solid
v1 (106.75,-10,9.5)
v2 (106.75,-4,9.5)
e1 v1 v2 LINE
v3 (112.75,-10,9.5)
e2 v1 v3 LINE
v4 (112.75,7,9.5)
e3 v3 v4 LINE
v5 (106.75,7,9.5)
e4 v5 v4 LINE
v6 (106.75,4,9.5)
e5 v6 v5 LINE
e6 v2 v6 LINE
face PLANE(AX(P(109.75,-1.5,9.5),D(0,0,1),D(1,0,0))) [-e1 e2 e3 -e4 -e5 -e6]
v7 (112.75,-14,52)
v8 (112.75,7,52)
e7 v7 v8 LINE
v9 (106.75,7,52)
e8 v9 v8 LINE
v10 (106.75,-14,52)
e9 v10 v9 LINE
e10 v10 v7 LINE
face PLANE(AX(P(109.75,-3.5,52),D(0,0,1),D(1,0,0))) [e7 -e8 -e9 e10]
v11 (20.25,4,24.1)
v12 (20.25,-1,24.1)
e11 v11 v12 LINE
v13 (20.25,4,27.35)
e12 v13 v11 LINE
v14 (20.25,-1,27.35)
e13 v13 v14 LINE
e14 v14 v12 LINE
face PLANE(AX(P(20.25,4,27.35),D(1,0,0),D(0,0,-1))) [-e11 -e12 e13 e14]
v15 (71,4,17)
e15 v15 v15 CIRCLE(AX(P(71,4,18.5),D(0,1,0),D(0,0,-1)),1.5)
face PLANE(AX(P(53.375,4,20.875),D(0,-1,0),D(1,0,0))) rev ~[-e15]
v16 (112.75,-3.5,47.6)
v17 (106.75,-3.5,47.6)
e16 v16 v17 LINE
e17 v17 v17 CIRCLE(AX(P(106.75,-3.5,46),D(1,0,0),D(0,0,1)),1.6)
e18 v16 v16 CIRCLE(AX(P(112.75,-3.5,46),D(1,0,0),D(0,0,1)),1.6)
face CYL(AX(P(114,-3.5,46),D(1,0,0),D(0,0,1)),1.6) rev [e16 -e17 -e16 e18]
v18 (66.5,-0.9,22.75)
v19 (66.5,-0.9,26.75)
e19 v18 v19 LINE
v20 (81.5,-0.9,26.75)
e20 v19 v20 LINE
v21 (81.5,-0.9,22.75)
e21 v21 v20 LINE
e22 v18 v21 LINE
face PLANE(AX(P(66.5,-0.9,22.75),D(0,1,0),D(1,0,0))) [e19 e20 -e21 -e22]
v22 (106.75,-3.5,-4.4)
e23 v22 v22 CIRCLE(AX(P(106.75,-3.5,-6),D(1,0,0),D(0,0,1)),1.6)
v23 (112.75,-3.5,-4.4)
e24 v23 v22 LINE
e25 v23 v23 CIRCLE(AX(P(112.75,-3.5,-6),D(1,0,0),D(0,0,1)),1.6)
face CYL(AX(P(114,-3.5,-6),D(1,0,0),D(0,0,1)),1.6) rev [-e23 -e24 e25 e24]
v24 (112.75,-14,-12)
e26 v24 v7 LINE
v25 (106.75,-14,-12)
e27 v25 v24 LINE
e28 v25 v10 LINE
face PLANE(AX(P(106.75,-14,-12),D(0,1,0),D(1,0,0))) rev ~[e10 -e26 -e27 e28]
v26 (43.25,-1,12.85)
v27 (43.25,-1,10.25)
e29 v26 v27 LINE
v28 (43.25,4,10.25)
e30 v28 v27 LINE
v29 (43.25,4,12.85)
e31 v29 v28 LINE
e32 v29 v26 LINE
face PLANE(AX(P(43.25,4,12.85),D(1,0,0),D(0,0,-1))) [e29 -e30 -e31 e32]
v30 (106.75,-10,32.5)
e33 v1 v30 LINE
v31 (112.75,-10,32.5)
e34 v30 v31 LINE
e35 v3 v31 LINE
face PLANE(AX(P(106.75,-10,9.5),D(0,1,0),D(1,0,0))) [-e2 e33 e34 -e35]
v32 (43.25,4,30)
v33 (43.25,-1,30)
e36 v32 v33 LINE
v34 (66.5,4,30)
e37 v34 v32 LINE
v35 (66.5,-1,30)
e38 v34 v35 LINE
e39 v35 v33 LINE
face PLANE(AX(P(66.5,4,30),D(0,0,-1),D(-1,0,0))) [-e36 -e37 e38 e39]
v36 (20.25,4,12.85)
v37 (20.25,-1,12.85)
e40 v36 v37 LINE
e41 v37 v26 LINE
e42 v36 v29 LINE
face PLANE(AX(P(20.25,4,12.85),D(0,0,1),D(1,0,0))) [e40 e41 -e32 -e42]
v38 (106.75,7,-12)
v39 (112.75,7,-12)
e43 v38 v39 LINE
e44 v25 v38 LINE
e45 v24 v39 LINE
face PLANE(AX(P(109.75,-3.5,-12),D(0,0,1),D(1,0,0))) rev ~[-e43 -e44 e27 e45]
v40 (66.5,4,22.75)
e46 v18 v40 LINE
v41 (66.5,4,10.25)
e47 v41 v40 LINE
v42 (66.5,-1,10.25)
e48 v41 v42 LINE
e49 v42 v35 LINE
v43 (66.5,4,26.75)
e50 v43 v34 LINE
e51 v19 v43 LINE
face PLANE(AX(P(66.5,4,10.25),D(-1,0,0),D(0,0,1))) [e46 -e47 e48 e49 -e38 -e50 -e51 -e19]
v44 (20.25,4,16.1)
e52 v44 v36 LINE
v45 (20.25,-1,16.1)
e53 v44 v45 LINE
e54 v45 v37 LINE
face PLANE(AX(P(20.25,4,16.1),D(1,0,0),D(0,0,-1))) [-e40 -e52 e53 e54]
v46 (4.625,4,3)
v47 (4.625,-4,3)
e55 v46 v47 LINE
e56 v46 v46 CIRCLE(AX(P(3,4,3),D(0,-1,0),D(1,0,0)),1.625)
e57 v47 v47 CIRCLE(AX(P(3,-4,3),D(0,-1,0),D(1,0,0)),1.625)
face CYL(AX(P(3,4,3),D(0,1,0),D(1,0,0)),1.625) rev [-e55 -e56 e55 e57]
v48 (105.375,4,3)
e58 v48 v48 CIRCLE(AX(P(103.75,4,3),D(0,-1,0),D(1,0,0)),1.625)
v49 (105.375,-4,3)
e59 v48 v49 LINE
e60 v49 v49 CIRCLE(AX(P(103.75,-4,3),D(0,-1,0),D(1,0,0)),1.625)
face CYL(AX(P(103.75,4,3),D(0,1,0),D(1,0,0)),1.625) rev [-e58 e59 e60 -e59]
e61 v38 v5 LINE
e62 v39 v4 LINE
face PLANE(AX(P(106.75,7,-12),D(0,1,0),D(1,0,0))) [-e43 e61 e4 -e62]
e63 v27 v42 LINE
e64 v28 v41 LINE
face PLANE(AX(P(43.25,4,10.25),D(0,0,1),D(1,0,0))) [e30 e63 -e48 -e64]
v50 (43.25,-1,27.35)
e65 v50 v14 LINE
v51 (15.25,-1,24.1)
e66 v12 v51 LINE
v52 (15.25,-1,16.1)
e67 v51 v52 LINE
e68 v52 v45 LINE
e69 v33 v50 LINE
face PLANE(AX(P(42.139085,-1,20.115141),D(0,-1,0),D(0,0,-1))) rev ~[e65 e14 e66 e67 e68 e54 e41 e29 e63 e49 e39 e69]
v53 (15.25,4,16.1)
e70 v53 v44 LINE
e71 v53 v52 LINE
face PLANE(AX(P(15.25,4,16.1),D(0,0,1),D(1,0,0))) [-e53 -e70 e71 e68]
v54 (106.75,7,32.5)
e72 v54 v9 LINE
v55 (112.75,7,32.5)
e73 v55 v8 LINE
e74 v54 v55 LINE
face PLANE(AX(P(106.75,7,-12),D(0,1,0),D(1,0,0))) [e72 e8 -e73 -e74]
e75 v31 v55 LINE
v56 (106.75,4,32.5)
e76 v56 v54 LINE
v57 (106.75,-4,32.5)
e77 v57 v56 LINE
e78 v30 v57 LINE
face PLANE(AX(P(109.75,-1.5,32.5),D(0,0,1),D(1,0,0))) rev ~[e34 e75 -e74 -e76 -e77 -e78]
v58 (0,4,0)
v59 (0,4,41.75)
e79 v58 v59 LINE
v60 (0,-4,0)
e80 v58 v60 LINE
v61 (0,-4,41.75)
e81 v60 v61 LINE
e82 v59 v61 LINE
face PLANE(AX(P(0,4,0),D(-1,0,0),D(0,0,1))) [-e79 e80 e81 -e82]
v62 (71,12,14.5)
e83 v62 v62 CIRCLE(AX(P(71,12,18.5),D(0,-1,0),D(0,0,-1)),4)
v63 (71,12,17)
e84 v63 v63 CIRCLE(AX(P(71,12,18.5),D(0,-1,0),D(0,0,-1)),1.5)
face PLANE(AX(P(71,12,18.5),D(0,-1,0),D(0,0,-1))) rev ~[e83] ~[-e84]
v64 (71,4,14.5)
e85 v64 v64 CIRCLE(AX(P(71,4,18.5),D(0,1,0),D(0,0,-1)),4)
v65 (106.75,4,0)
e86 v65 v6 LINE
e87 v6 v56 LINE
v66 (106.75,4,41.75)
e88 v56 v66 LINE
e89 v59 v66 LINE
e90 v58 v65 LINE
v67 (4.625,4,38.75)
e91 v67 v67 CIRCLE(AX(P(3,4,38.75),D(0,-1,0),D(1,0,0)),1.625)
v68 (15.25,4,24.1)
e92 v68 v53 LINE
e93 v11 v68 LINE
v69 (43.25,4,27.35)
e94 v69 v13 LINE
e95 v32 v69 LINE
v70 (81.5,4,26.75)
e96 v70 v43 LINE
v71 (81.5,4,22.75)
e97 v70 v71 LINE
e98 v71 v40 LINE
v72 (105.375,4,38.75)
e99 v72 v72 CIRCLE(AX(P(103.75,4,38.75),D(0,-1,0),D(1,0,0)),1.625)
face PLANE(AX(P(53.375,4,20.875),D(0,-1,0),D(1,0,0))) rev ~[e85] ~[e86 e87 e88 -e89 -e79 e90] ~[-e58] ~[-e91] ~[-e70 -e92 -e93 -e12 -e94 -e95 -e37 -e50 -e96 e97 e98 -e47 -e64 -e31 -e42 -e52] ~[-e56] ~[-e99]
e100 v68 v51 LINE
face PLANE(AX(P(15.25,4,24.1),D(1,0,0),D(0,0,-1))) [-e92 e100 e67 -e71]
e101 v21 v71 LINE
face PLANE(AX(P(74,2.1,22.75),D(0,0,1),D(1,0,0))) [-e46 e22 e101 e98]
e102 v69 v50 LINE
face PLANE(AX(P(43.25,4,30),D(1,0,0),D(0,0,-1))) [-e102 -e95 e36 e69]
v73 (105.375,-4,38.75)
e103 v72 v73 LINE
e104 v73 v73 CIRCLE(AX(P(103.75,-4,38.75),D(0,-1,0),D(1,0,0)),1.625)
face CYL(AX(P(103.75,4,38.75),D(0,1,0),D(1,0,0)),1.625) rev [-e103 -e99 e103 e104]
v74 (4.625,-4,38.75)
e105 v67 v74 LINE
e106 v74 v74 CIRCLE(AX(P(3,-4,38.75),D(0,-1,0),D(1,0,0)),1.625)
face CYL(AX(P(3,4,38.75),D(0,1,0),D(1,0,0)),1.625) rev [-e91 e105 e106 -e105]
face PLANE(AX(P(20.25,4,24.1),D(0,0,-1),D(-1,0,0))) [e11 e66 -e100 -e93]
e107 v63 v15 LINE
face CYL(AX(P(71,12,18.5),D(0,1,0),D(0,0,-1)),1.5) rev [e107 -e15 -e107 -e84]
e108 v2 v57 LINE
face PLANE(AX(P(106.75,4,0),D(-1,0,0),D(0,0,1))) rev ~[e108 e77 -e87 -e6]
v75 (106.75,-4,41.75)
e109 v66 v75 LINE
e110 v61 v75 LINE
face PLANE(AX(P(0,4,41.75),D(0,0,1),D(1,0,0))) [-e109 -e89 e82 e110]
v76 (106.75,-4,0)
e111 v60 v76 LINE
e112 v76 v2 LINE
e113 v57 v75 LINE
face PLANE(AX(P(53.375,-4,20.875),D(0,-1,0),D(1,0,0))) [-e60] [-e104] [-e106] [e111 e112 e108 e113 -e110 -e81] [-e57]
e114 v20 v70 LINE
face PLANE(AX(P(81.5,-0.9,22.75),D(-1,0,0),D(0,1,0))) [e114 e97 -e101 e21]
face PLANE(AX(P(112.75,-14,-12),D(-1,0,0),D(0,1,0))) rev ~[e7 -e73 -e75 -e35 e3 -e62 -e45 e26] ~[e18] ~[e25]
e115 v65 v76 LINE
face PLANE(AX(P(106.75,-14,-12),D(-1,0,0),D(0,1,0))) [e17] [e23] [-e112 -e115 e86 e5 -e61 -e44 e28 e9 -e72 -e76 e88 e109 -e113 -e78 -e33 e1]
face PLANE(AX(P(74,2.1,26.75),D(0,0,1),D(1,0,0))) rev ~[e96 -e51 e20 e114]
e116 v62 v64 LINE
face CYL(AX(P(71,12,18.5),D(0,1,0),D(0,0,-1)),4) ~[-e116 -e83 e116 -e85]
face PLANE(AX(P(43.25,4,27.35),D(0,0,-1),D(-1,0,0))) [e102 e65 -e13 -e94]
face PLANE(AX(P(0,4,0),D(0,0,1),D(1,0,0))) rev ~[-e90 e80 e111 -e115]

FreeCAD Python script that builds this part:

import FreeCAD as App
import Part
import Sketcher
from FreeCAD import Vector


def add_polygon(sketch, points):
    """Adds a closed chain of lines whose ends are joined by coincident constraints."""
    first, n = sketch.GeometryCount, len(points)
    for a, b in zip(points, points[1:] + points[:1]):
        sketch.addGeometry(Part.LineSegment(App.Vector(*a, 0), App.Vector(*b, 0)), False)
    for i in range(n):
        sketch.addConstraint(Sketcher.Constraint("Coincident", first + i, 2, first + (i + 1) % n, 1))

doc = App.newDocument("Part")
body = doc.addObject("PartDesign::Body", "Body")

sketch1 = doc.addObject("Sketcher::SketchObject", "Sketch")
body.addObject(sketch1)
sketch1.AttachmentSupport = (doc.XY_Plane, [""])
sketch1.MapMode = "FlatFace"
sketch1.AttachmentOffset = App.Placement(Vector(0, 0, 22.75), App.Rotation())
add_polygon(sketch1, [(66, 5), (66, -1), (82, -1), (82, 5)])
sketch1.addConstraint(Sketcher.Constraint("Vertical", 0))
sketch1.addConstraint(Sketcher.Constraint("Horizontal", 1))
sketch1.addConstraint(Sketcher.Constraint("Vertical", 2))
sketch1.addConstraint(Sketcher.Constraint("Horizontal", 3))
sketch1.addConstraint(Sketcher.Constraint("DistanceX", 1, 1, 1, 2, 15.0))
sketch1.addConstraint(Sketcher.Constraint("DistanceY", 0, 2, 0, 1, 6.0))
sketch1.addConstraint(Sketcher.Constraint("DistanceX", -1, 1, 0, 2, 66.5))
sketch1.addConstraint(Sketcher.Constraint("DistanceY", 0, 2, -1, 1, 0.9))
pad1 = doc.addObject("PartDesign::Pad", "Pad")
body.addObject(pad1)
pad1.Profile = sketch1
pad1.Length = 4
body2 = doc.addObject("PartDesign::Body", "Body001")

sketch2 = doc.addObject("Sketcher::SketchObject", "Sketch001")
body2.addObject(sketch2)
sketch2.AttachmentSupport = (doc.getObject("YZ_Plane001"), [""])
sketch2.MapMode = "FlatFace"
add_polygon(sketch2, [(10.2, 66.5), (10.2, 43.2), (12.9, 43.2), (12.9, 20.2), (16.1, 20.2), (16.1, 15.2), (24.1, 15.2), (24.1, 20.2), (27.4, 20.2), (27.4, 43.2), (30, 43.2), (30, 66.5)])
sketch2.addConstraint(Sketcher.Constraint("Vertical", 0))
sketch2.addConstraint(Sketcher.Constraint("Horizontal", 1))
sketch2.addConstraint(Sketcher.Constraint("Vertical", 2))
sketch2.addConstraint(Sketcher.Constraint("Horizontal", 3))
sketch2.addConstraint(Sketcher.Constraint("Vertical", 4))
sketch2.addConstraint(Sketcher.Constraint("Horizontal", 5))
sketch2.addConstraint(Sketcher.Constraint("Vertical", 6))
sketch2.addConstraint(Sketcher.Constraint("Horizontal", 7))
sketch2.addConstraint(Sketcher.Constraint("Vertical", 8))
sketch2.addConstraint(Sketcher.Constraint("Horizontal", 9))
sketch2.addConstraint(Sketcher.Constraint("Vertical", 10))
sketch2.addConstraint(Sketcher.Constraint("Horizontal", 11))
sketch2.addConstraint(Sketcher.Constraint("Horizontal", 3, 2, 6, 2))
sketch2.addConstraint(Sketcher.Constraint("Horizontal", 1, 2, 8, 2))
sketch2.addConstraint(Sketcher.Constraint("Equal", 3, 7))
sketch2.addConstraint(Sketcher.Constraint("DistanceX", 5, 1, 5, 2, 8.0))
sketch2.addConstraint(Sketcher.Constraint("DistanceY", 2, 2, 2, 1, 23.0))
sketch2.addConstraint(Sketcher.Constraint("DistanceY", 4, 2, 4, 1, 5.0))
sketch2.addConstraint(Sketcher.Constraint("DistanceX", 9, 1, 9, 2, 2.6))
sketch2.addConstraint(Sketcher.Constraint("DistanceX", -1, 1, 9, 2, 30.0))
sketch2.addConstraint(Sketcher.Constraint("DistanceX", 1, 1, 1, 2, 2.65))
sketch2.addConstraint(Sketcher.Constraint("DistanceX", 3, 1, 3, 2, 3.25))
sketch2.addConstraint(Sketcher.Constraint("DistanceY", 0, 2, 0, 1, 23.25))
sketch2.addConstraint(Sketcher.Constraint("DistanceY", -1, 1, 10, 2, 66.5))
pad2 = doc.addObject("PartDesign::Pad", "Pad001")
body2.addObject(pad2)
pad2.Profile = sketch2
pad2.Length = 5
body3 = doc.addObject("PartDesign::Body", "Body002")
doc.recompute()

body2.Placement = App.Placement(Vector(0, 0, 0), App.Rotation(Vector(1, 0, 0), 270))
boolean = doc.addObject("PartDesign::Boolean", "Boolean")
body3.addObject(boolean)
boolean.Type = "Fuse"
boolean.addObjects([body2])
body4 = doc.addObject("PartDesign::Body", "Body003")
doc.recompute()

body3.Placement = App.Placement(Vector(0, 4, 40.25), App.Rotation(Vector(0, 0, 1), 270))
boolean2 = doc.addObject("PartDesign::Boolean", "Boolean001")
body4.addObject(boolean2)
boolean2.Type = "Fuse"
boolean2.addObjects([body3])
body5 = doc.addObject("PartDesign::Body", "Body004")

sketch3 = doc.addObject("Sketcher::SketchObject", "Sketch002")
body5.addObject(sketch3)
sketch3.AttachmentSupport = (doc.getObject("YZ_Plane004"), [""])
sketch3.MapMode = "FlatFace"
sketch3.AttachmentOffset = App.Placement(Vector(0, 0, 114), App.Rotation())
sketch3.addGeometry(Part.Circle(Vector(6.5, 46, 0), Vector(0, 0, 1), 1.6), False)
sketch3.addConstraint(Sketcher.Constraint("Diameter", 0, 3.2))
sketch3.addConstraint(Sketcher.Constraint("DistanceY", -1, 1, 0, 3, 46.0))
sketch3.addConstraint(Sketcher.Constraint("DistanceX", -1, 1, 0, 3, 6.5))
pad3 = doc.addObject("PartDesign::Pad", "Pad002")
body5.addObject(pad3)
pad3.Profile = sketch3
pad3.Length = 10
pad3.Reversed = True
body6 = doc.addObject("PartDesign::Body", "Body005")
body6.AllowCompound = True

sketch4 = doc.addObject("Sketcher::SketchObject", "Sketch003")
body6.addObject(sketch4)
sketch4.AttachmentSupport = (doc.getObject("YZ_Plane005"), [""])
sketch4.MapMode = "FlatFace"
sketch4.AttachmentOffset = App.Placement(Vector(0, 0, 114), App.Rotation())
sketch4.addGeometry(Part.Circle(Vector(6.5, -6, 0), Vector(0, 0, 1), 1.6), False)
sketch4.addConstraint(Sketcher.Constraint("Diameter", 0, 3.2))
sketch4.addConstraint(Sketcher.Constraint("DistanceY", 0, 3, -1, 1, 6.0))
sketch4.addConstraint(Sketcher.Constraint("DistanceX", -1, 1, 0, 3, 6.5))
pad4 = doc.addObject("PartDesign::Pad", "Pad003")
body6.addObject(pad4)
pad4.Profile = sketch4
pad4.Length = 10
pad4.Reversed = True
doc.recompute()

boolean3 = doc.addObject("PartDesign::Boolean", "Boolean002")
body6.addObject(boolean3)
boolean3.Type = "Fuse"
boolean3.addObjects([body5])
body7 = doc.addObject("PartDesign::Body", "Body006")
body7.AllowCompound = True
doc.recompute()

body6.Placement = App.Placement(Vector(0, -10, 0), App.Rotation(Vector(0, 0, 1), 0))
boolean4 = doc.addObject("PartDesign::Boolean", "Boolean003")
body7.addObject(boolean4)
boolean4.Type = "Fuse"
boolean4.addObjects([body6])
body8 = doc.addObject("PartDesign::Body", "Body007")

sketch5 = doc.addObject("Sketcher::SketchObject", "Sketch004")
body8.addObject(sketch5)
sketch5.AttachmentSupport = (doc.getObject("YZ_Plane007"), [""])
sketch5.MapMode = "FlatFace"
add_polygon(sketch5, [(0, 41.8), (0, 0), (106.8, 0), (106.8, 41.8)])
sketch5.addGeometry(Part.Circle(Vector(3, 3, 0), Vector(0, 0, 1), 1.6), False)
sketch5.addGeometry(Part.Circle(Vector(103.8, 3, 0), Vector(0, 0, 1), 1.6), False)
sketch5.addGeometry(Part.Circle(Vector(3, 38.8, 0), Vector(0, 0, 1), 1.6), False)
sketch5.addGeometry(Part.Circle(Vector(103.8, 38.8, 0), Vector(0, 0, 1), 1.6), False)
sketch5.addConstraint(Sketcher.Constraint("Vertical", 0))
sketch5.addConstraint(Sketcher.Constraint("Horizontal", 1))
sketch5.addConstraint(Sketcher.Constraint("Vertical", 2))
sketch5.addConstraint(Sketcher.Constraint("Horizontal", 3))
sketch5.addConstraint(Sketcher.Constraint("Coincident", 0, 2, -1, 1))
sketch5.addConstraint(Sketcher.Constraint("Equal", 4, 5))
sketch5.addConstraint(Sketcher.Constraint("Equal", 5, 6))
sketch5.addConstraint(Sketcher.Constraint("Equal", 6, 7))
sketch5.addConstraint(Sketcher.Constraint("Horizontal", 4, 3, 5, 3))
sketch5.addConstraint(Sketcher.Constraint("Horizontal", 6, 3, 7, 3))
sketch5.addConstraint(Sketcher.Constraint("Vertical", 4, 3, 6, 3))
sketch5.addConstraint(Sketcher.Constraint("Vertical", 5, 3, 7, 3))
sketch5.addConstraint(Sketcher.Constraint("Diameter", 4, 3.25))
sketch5.addConstraint(Sketcher.Constraint("DistanceX", -1, 1, 4, 3, 3.0))
sketch5.addConstraint(Sketcher.Constraint("DistanceY", -1, 1, 4, 3, 3.0))
sketch5.addConstraint(Sketcher.Constraint("DistanceX", 5, 3, 1, 2, 3.0))
sketch5.addConstraint(Sketcher.Constraint("DistanceY", 7, 3, 2, 2, 3.0))
sketch5.addConstraint(Sketcher.Constraint("DistanceX", 1, 1, 1, 2, 106.75))
sketch5.addConstraint(Sketcher.Constraint("DistanceY", 0, 2, 0, 1, 41.75))
pad5 = doc.addObject("PartDesign::Pad", "Pad004")
body8.addObject(pad5)
pad5.Profile = sketch5
pad5.Length = 8
body9 = doc.addObject("PartDesign::Body", "Body008")
doc.recompute()

body8.Placement = App.Placement(Vector(0, 4, 0), App.Rotation(Vector(0, 0, 1), 270))
boolean5 = doc.addObject("PartDesign::Boolean", "Boolean004")
body9.addObject(boolean5)
boolean5.Type = "Fuse"
boolean5.addObjects([body8])
body10 = doc.addObject("PartDesign::Body", "Body009")

sketch6 = doc.addObject("Sketcher::SketchObject", "Sketch005")
body10.addObject(sketch6)
sketch6.AttachmentSupport = (doc.getObject("XY_Plane009"), [""])
sketch6.MapMode = "FlatFace"
sketch6.AttachmentOffset = App.Placement(Vector(0, 0, 9.5), App.Rotation())
add_polygon(sketch6, [(107, 17), (107, 0), (113, 0), (113, 17)])
sketch6.addConstraint(Sketcher.Constraint("Vertical", 0))
sketch6.addConstraint(Sketcher.Constraint("Horizontal", 1))
sketch6.addConstraint(Sketcher.Constraint("Vertical", 2))
sketch6.addConstraint(Sketcher.Constraint("Horizontal", 3))
sketch6.addConstraint(Sketcher.Constraint("PointOnObject", 0, 2, -1))
sketch6.addConstraint(Sketcher.Constraint("DistanceX", 1, 1, 1, 2, 6.0))
sketch6.addConstraint(Sketcher.Constraint("DistanceY", 0, 2, 0, 1, 17.0))
sketch6.addConstraint(Sketcher.Constraint("DistanceX", -1, 1, 0, 2, 106.75))
pad6 = doc.addObject("PartDesign::Pad", "Pad005")
body10.addObject(pad6)
pad6.Profile = sketch6
pad6.Length = 23
body11 = doc.addObject("PartDesign::Body", "Body010")

sketch7 = doc.addObject("Sketcher::SketchObject", "Sketch006")
body11.addObject(sketch7)
sketch7.AttachmentSupport = (doc.getObject("XY_Plane010"), [""])
sketch7.MapMode = "FlatFace"
sketch7.AttachmentOffset = App.Placement(Vector(0, 0, -12), App.Rotation())
add_polygon(sketch7, [(107, 17), (107, -4), (113, -4), (113, 17)])
sketch7.addConstraint(Sketcher.Constraint("Vertical", 0))
sketch7.addConstraint(Sketcher.Constraint("Horizontal", 1))
sketch7.addConstraint(Sketcher.Constraint("Vertical", 2))
sketch7.addConstraint(Sketcher.Constraint("Horizontal", 3))
sketch7.addConstraint(Sketcher.Constraint("DistanceX", 1, 1, 1, 2, 6.0))
sketch7.addConstraint(Sketcher.Constraint("DistanceY", 0, 2, 0, 1, 21.0))
sketch7.addConstraint(Sketcher.Constraint("DistanceY", 0, 2, -1, 1, 4.0))
sketch7.addConstraint(Sketcher.Constraint("DistanceX", -1, 1, 0, 2, 106.75))
pad7 = doc.addObject("PartDesign::Pad", "Pad006")
body11.addObject(pad7)
pad7.Profile = sketch7
pad7.Length = 64
doc.recompute()

boolean6 = doc.addObject("PartDesign::Boolean", "Boolean005")
body11.addObject(boolean6)
boolean6.Type = "Cut"
boolean6.addObjects([body10])
body12 = doc.addObject("PartDesign::Body", "Body011")
doc.recompute()

body11.Placement = App.Placement(Vector(0, -10, 0), App.Rotation(Vector(0, 0, 1), 0))
boolean7 = doc.addObject("PartDesign::Boolean", "Boolean006")
body12.addObject(boolean7)
boolean7.Type = "Fuse"
boolean7.addObjects([body11])
doc.recompute()

boolean8 = doc.addObject("PartDesign::Boolean", "Boolean007")
body12.addObject(boolean8)
boolean8.Type = "Fuse"
boolean8.addObjects([body9])
doc.recompute()

boolean9 = doc.addObject("PartDesign::Boolean", "Boolean008")
body12.addObject(boolean9)
boolean9.Type = "Cut"
boolean9.addObjects([body7])
doc.recompute()

boolean10 = doc.addObject("PartDesign::Boolean", "Boolean009")
body12.addObject(boolean10)
boolean10.Type = "Cut"
boolean10.addObjects([body4])
doc.recompute()

boolean11 = doc.addObject("PartDesign::Boolean", "Boolean010")
body12.addObject(boolean11)
boolean11.Type = "Cut"
boolean11.addObjects([body])
body13 = doc.addObject("PartDesign::Body", "Body012")

sketch8 = doc.addObject("Sketcher::SketchObject", "Sketch007")
body13.addObject(sketch8)
sketch8.AttachmentSupport = (doc.getObject("XZ_Plane012"), [""])
sketch8.MapMode = "FlatFace"
sketch8.AttachmentOffset = App.Placement(Vector(0, 0, -12), App.Rotation())
sketch8.addGeometry(Part.Circle(Vector(71, 18.5, 0), Vector(0, 0, 1), 4), False)
sketch8.addGeometry(Part.Circle(Vector(71, 18.5, 0), Vector(0, 0, 1), 1.5), False)
sketch8.addConstraint(Sketcher.Constraint("Coincident", 1, 3, 0, 3))
sketch8.addConstraint(Sketcher.Constraint("Diameter", 0, 8.0))
sketch8.addConstraint(Sketcher.Constraint("Diameter", 1, 3.0))
sketch8.addConstraint(Sketcher.Constraint("DistanceX", -1, 1, 0, 3, 71.0))
sketch8.addConstraint(Sketcher.Constraint("DistanceY", -1, 1, 0, 3, 18.5))
pad8 = doc.addObject("PartDesign::Pad", "Pad007")
body13.addObject(pad8)
pad8.Profile = sketch8
pad8.Length = 12
doc.recompute()

boolean12 = doc.addObject("PartDesign::Boolean", "Boolean011")
body13.addObject(boolean12)
boolean12.Type = "Fuse"
boolean12.addObjects([body12])

doc.recompute()
